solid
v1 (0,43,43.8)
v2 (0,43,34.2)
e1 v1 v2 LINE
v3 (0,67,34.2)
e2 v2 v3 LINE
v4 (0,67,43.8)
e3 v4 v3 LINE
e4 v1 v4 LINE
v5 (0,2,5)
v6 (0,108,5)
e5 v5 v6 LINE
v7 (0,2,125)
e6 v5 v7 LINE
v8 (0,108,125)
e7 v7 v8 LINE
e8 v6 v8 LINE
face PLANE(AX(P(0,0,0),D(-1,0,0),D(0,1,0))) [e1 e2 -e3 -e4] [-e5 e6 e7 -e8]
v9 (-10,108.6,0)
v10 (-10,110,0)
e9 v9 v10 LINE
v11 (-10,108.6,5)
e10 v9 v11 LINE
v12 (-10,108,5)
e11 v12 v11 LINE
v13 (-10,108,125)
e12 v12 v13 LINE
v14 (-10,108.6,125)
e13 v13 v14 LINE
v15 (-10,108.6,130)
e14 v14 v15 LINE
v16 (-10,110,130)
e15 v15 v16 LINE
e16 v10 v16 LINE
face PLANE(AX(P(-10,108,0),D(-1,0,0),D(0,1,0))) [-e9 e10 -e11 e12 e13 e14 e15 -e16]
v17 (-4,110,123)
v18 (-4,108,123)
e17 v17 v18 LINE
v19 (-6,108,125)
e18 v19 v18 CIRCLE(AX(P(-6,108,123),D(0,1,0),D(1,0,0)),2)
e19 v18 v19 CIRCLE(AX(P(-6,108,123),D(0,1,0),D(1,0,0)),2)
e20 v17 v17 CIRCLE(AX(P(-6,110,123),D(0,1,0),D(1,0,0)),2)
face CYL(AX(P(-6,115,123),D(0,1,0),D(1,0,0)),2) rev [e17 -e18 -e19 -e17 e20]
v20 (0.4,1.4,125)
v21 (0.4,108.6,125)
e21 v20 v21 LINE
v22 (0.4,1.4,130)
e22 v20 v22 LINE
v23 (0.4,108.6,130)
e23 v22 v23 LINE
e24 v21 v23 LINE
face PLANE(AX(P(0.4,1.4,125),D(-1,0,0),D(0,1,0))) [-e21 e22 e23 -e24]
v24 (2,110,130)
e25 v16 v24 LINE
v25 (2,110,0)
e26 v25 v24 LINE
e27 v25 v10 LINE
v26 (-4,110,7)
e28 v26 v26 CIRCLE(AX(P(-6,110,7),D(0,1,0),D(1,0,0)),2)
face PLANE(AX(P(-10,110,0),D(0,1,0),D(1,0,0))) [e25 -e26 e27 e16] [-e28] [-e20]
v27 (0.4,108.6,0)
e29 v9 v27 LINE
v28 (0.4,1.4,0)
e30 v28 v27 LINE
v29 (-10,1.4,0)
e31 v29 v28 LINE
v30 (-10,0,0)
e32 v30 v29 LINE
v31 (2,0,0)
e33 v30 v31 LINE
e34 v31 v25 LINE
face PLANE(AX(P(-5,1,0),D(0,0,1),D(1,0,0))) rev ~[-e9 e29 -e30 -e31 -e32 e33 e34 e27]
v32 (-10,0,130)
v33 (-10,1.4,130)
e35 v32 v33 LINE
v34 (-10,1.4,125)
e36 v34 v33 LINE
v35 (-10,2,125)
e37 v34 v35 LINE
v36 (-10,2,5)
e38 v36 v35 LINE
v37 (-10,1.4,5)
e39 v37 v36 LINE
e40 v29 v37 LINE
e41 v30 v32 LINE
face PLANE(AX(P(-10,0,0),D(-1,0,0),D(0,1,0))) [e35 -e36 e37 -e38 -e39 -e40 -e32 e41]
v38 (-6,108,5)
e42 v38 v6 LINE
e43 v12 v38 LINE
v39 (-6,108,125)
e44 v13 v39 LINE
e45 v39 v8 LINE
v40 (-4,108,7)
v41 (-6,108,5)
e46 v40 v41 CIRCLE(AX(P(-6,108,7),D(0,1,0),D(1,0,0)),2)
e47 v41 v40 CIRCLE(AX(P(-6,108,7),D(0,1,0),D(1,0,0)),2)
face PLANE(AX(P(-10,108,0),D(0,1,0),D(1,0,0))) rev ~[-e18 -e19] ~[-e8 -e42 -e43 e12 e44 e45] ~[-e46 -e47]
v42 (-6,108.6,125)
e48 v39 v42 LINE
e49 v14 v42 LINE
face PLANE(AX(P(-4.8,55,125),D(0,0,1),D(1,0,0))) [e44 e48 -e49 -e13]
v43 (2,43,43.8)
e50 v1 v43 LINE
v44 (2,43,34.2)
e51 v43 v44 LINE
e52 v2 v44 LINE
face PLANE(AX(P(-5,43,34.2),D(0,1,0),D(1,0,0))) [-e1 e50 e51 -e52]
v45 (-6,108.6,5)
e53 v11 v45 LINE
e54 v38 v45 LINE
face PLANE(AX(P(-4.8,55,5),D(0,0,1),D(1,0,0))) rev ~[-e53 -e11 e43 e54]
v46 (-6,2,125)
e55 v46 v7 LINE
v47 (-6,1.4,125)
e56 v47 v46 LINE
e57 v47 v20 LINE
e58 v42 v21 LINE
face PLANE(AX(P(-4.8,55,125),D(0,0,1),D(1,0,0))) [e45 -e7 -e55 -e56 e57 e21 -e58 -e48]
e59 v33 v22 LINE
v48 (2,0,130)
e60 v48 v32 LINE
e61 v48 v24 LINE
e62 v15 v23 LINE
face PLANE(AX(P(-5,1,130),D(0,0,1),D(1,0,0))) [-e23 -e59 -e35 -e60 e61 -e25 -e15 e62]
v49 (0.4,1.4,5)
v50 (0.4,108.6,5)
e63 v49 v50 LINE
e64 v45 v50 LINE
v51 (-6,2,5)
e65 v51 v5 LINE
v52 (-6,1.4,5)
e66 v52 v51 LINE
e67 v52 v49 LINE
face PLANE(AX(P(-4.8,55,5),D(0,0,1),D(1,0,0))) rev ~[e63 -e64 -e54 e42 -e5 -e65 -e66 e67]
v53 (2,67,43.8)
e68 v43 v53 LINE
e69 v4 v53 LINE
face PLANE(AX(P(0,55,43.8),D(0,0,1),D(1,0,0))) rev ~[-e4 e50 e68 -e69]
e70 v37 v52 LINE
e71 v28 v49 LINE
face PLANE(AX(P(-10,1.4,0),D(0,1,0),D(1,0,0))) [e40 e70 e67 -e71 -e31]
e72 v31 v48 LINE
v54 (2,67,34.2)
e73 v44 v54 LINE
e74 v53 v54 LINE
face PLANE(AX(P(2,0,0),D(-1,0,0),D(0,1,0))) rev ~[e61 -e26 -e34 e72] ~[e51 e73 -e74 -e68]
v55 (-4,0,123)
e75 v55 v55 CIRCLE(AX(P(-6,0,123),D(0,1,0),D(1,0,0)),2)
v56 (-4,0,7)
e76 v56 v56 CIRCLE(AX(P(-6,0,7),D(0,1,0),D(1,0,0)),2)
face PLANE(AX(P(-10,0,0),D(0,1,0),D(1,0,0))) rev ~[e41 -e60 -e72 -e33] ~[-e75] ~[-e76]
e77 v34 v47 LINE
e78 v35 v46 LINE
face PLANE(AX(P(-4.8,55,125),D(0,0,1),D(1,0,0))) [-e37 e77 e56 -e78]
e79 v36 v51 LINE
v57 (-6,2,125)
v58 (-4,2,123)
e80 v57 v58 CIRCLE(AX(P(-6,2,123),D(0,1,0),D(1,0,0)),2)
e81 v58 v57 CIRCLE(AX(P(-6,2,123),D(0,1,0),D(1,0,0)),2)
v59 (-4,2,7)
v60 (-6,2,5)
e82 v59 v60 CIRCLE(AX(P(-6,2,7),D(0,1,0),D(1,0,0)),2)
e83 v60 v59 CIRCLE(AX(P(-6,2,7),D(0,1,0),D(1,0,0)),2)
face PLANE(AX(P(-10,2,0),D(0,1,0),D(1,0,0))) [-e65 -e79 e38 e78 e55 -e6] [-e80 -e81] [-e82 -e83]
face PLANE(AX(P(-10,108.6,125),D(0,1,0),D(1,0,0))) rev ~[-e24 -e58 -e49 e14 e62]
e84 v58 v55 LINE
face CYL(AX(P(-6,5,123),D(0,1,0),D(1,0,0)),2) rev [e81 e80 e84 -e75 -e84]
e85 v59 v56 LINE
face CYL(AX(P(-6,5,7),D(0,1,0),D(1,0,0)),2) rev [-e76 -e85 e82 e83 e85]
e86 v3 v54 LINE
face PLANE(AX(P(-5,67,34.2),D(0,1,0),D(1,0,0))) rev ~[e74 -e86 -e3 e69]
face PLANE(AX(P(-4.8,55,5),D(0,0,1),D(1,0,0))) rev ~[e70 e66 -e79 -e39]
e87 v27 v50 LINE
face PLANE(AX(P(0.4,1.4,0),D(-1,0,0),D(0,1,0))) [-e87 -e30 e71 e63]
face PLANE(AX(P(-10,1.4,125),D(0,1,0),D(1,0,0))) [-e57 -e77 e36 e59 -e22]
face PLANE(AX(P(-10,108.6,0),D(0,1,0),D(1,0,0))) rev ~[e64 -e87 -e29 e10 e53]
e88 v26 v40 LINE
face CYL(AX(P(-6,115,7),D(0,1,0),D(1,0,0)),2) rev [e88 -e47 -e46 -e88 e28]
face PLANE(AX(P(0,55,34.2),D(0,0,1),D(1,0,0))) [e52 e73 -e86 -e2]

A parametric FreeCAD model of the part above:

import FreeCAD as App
import Part
import Sketcher

V = App.Vector
Q = App.Units.Quantity

doc = App.newDocument("Part")
body = doc.addObject("PartDesign::Body", "Body")

# Sketch on XZ plane
sketch1 = body.newObject("Sketcher::SketchObject", "Sketch")
sketch1.AttachmentSupport = (doc.getObject("XZ_Plane"), [""])
sketch1.MapMode = "FlatFace"
sketch1.AttachmentOffset = App.Placement(V(0, 0, -5), App.Rotation())
sketch1.addGeometry(Part.Circle(V(-6, 123, 0), V(0, 0, 1), 2), False)
sketch1.addConstraint([
    Sketcher.Constraint("Diameter", 0, Q("4 mm")),
    Sketcher.Constraint("DistanceX", 0, 3, -1, 1, Q("6 mm")),
    Sketcher.Constraint("DistanceY", -1, 1, 0, 3, Q("123 mm")),
])
pad1 = body.newObject("PartDesign::Pad", "Pad")
pad1.Profile = sketch1
pad1.Length = 10
body2 = doc.addObject("PartDesign::Body", "Body001")

# Sketch on XZ plane
sketch2 = body2.newObject("Sketcher::SketchObject", "Sketch001")
sketch2.AttachmentSupport = (doc.getObject("XZ_Plane001"), [""])
sketch2.MapMode = "FlatFace"
sketch2.AttachmentOffset = App.Placement(V(0, 0, -115), App.Rotation())
sketch2.addGeometry(Part.Circle(V(-6, 123, 0), V(0, 0, 1), 2), False)
sketch2.addConstraint([
    Sketcher.Constraint("Diameter", 0, Q("4 mm")),
    Sketcher.Constraint("DistanceX", 0, 3, -1, 1, Q("6 mm")),
    Sketcher.Constraint("DistanceY", -1, 1, 0, 3, Q("123 mm")),
])
pad2 = body2.newObject("PartDesign::Pad", "Pad001")
pad2.Profile = sketch2
pad2.Length = 10
body3 = doc.addObject("PartDesign::Body", "Body002")

# Sketch on XZ plane
sketch3 = body3.newObject("Sketcher::SketchObject", "Sketch002")
sketch3.AttachmentSupport = (doc.getObject("XZ_Plane002"), [""])
sketch3.MapMode = "FlatFace"
sketch3.AttachmentOffset = App.Placement(V(0, 0, -115), App.Rotation())
sketch3.addGeometry(Part.Circle(V(-6, 7, 0), V(0, 0, 1), 2), False)
sketch3.addConstraint([
    Sketcher.Constraint("Diameter", 0, Q("4 mm")),
    Sketcher.Constraint("DistanceX", 0, 3, -1, 1, Q("6 mm")),
    Sketcher.Constraint("DistanceY", -1, 1, 0, 3, Q("7 mm")),
])
pad3 = body3.newObject("PartDesign::Pad", "Pad002")
pad3.Profile = sketch3
pad3.Length = 10
body4 = doc.addObject("PartDesign::Body", "Body003")
body4.AllowCompound = True

# Sketch on XZ plane
sketch4 = body4.newObject("Sketcher::SketchObject", "Sketch003")
sketch4.AttachmentSupport = (doc.getObject("XZ_Plane003"), [""])
sketch4.MapMode = "FlatFace"
sketch4.AttachmentOffset = App.Placement(V(0, 0, -5), App.Rotation())
sketch4.addGeometry(Part.Circle(V(-6, 7, 0), V(0, 0, 1), 2), False)
sketch4.addConstraint([
    Sketcher.Constraint("Diameter", 0, Q("4 mm")),
    Sketcher.Constraint("DistanceX", 0, 3, -1, 1, Q("6 mm")),
    Sketcher.Constraint("DistanceY", -1, 1, 0, 3, Q("7 mm")),
])
pad4 = body4.newObject("PartDesign::Pad", "Pad003")
pad4.Profile = sketch4
pad4.Length = 10
doc.recompute()

boolean = body4.newObject("PartDesign::Boolean", "Boolean")
boolean.Type = "Fuse"
boolean.addObjects([body])
doc.recompute()

boolean2 = body4.newObject("PartDesign::Boolean", "Boolean001")
boolean2.Type = "Fuse"
boolean2.addObjects([body2])
doc.recompute()

boolean3 = body4.newObject("PartDesign::Boolean", "Boolean002")
boolean3.Type = "Fuse"
boolean3.addObjects([body3])
body5 = doc.addObject("PartDesign::Body", "Body004")

# Sketch on XY plane
sketch5 = body5.newObject("Sketcher::SketchObject", "Sketch004")
sketch5.AttachmentSupport = (doc.getObject("XY_Plane004"), [""])
sketch5.MapMode = "FlatFace"
sketch5.AttachmentOffset = App.Placement(V(0, 0, 34.2), App.Rotation())
sketch5.addGeometry([
    Part.LineSegment(V(-5, 67, 0), V(-5, 43, 0)),
    Part.LineSegment(V(-5, 43, 0), V(5, 43, 0)),
    Part.LineSegment(V(5, 43, 0), V(5, 67, 0)),
    Part.LineSegment(V(5, 67, 0), V(-5, 67, 0)),
], False)
sketch5.addConstraint([
    Sketcher.Constraint("Coincident", 0, 2, 1, 1),
    Sketcher.Constraint("Coincident", 1, 2, 2, 1),
    Sketcher.Constraint("Coincident", 2, 2, 3, 1),
    Sketcher.Constraint("Coincident", 3, 2, 0, 1),
    Sketcher.Constraint("Vertical", 0),
    Sketcher.Constraint("Horizontal", 1),
    Sketcher.Constraint("Vertical", 2),
    Sketcher.Constraint("Horizontal", 3),
    Sketcher.Constraint("DistanceX", 1, 1, 1, 2, Q("10 mm")),
    Sketcher.Constraint("DistanceY", 0, 2, 0, 1, Q("24 mm")),
    Sketcher.Constraint("DistanceX", 0, 2, -1, 1, Q("5 mm")),
    Sketcher.Constraint("DistanceY", -1, 1, 0, 2, Q("43 mm")),
])
pad5 = body5.newObject("PartDesign::Pad", "Pad004")
pad5.Profile = sketch5
pad5.Length = 9.6
body6 = doc.addObject("PartDesign::Body", "Body005")

# Sketch on XY plane
sketch6 = body6.newObject("Sketcher::SketchObject", "Sketch005")
sketch6.AttachmentSupport = (doc.getObject("XY_Plane005"), [""])
sketch6.MapMode = "FlatFace"
sketch6.addGeometry([
    Part.LineSegment(V(-10, 109, 0), V(-10, 1, 0)),
    Part.LineSegment(V(-10, 1, 0), V(0, 1, 0)),
    Part.LineSegment(V(0, 1, 0), V(0, 109, 0)),
    Part.LineSegment(V(0, 109, 0), V(-10, 109, 0)),
], False)
sketch6.addConstraint([
    Sketcher.Constraint("Coincident", 0, 2, 1, 1),
    Sketcher.Constraint("Coincident", 1, 2, 2, 1),
    Sketcher.Constraint("Coincident", 2, 2, 3, 1),
    Sketcher.Constraint("Coincident", 3, 2, 0, 1),
    Sketcher.Constraint("Vertical", 0),
    Sketcher.Constraint("Horizontal", 1),
    Sketcher.Constraint("Vertical", 2),
    Sketcher.Constraint("Horizontal", 3),
    Sketcher.Constraint("DistanceX", 1, 1, 1, 2, Q("10.4 mm")),
    Sketcher.Constraint("DistanceY", 0, 2, 0, 1, Q("107.2 mm")),
    Sketcher.Constraint("DistanceX", 0, 2, -1, 1, Q("10 mm")),
    Sketcher.Constraint("DistanceY", -1, 1, 0, 2, Q("1.4 mm")),
])
pad6 = body6.newObject("PartDesign::Pad", "Pad005")
pad6.Profile = sketch6
pad6.Length = 5
body7 = doc.addObject("PartDesign::Body", "Body006")
body7.AllowCompound = True

# Sketch on XY plane
sketch7 = body7.newObject("Sketcher::SketchObject", "Sketch006")
sketch7.AttachmentSupport = (doc.getObject("XY_Plane006"), [""])
sketch7.MapMode = "FlatFace"
sketch7.AttachmentOffset = App.Placement(V(0, 0, 125), App.Rotation())
sketch7.addGeometry([
    Part.LineSegment(V(-10, 109, 0), V(-10, 1, 0)),
    Part.LineSegment(V(-10, 1, 0), V(0, 1, 0)),
    Part.LineSegment(V(0, 1, 0), V(0, 109, 0)),
    Part.LineSegment(V(0, 109, 0), V(-10, 109, 0)),
], False)
sketch7.addConstraint([
    Sketcher.Constraint("Coincident", 0, 2, 1, 1),
    Sketcher.Constraint("Coincident", 1, 2, 2, 1),
    Sketcher.Constraint("Coincident", 2, 2, 3, 1),
    Sketcher.Constraint("Coincident", 3, 2, 0, 1),
    Sketcher.Constraint("Vertical", 0),
    Sketcher.Constraint("Horizontal", 1),
    Sketcher.Constraint("Vertical", 2),
    Sketcher.Constraint("Horizontal", 3),
    Sketcher.Constraint("DistanceX", 1, 1, 1, 2, Q("10.4 mm")),
    Sketcher.Constraint("DistanceY", 0, 2, 0, 1, Q("107.2 mm")),
    Sketcher.Constraint("DistanceX", 0, 2, -1, 1, Q("10 mm")),
    Sketcher.Constraint("DistanceY", -1, 1, 0, 2, Q("1.4 mm")),
])
pad7 = body7.newObject("PartDesign::Pad", "Pad006")
pad7.Profile = sketch7
pad7.Length = 5
doc.recompute()

boolean4 = body7.newObject("PartDesign::Boolean", "Boolean003")
boolean4.Type = "Fuse"
boolean4.addObjects([body6])
body8 = doc.addObject("PartDesign::Body", "Body007")

# Sketch on XY plane
sketch8 = body8.newObject("Sketcher::SketchObject", "Sketch007")
sketch8.AttachmentSupport = (doc.getObject("XY_Plane007"), [""])
sketch8.MapMode = "FlatFace"
sketch8.addGeometry([
    Part.LineSegment(V(-10, 110, 0), V(-10, 108, 0)),
    Part.LineSegment(V(-10, 108, 0), V(0, 108, 0)),
    Part.LineSegment(V(0, 108, 0), V(0, 110, 0)),
    Part.LineSegment(V(0, 110, 0), V(-10, 110, 0)),
], False)
sketch8.addConstraint([
    Sketcher.Constraint("Coincident", 0, 2, 1, 1),
    Sketcher.Constraint("Coincident", 1, 2, 2, 1),
    Sketcher.Constraint("Coincident", 2, 2, 3, 1),
    Sketcher.Constraint("Coincident", 3, 2, 0, 1),
    Sketcher.Constraint("Vertical", 0),
    Sketcher.Constraint("Horizontal", 1),
    Sketcher.Constraint("Vertical", 2),
    Sketcher.Constraint("Horizontal", 3),
    Sketcher.Constraint("PointOnObject", 1, 2, -2),
    Sketcher.Constraint("DistanceX", 1, 1, 1, 2, Q("10 mm")),
    Sketcher.Constraint("DistanceY", 0, 2, 0, 1, Q("2 mm")),
    Sketcher.Constraint("DistanceY", -1, 1, 0, 2, Q("108 mm")),
])
pad8 = body8.newObject("PartDesign::Pad", "Pad007")
pad8.Profile = sketch8
pad8.Length = 130
body9 = doc.addObject("PartDesign::Body", "Body008")

# Sketch on XY plane
sketch9 = body9.newObject("Sketcher::SketchObject", "Sketch008")
sketch9.AttachmentSupport = (doc.getObject("XY_Plane008"), [""])
sketch9.MapMode = "FlatFace"
sketch9.addGeometry([
    Part.LineSegment(V(-10, 2, 0), V(-10, 0, 0)),
    Part.LineSegment(V(-10, 0, 0), V(0, 0, 0)),
    Part.LineSegment(V(0, 0, 0), V(0, 2, 0)),
    Part.LineSegment(V(0, 2, 0), V(-10, 2, 0)),
], False)
sketch9.addConstraint([
    Sketcher.Constraint("Coincident", 0, 2, 1, 1),
    Sketcher.Constraint("Coincident", 1, 2, 2, 1),
    Sketcher.Constraint("Coincident", 2, 2, 3, 1),
    Sketcher.Constraint("Coincident", 3, 2, 0, 1),
    Sketcher.Constraint("Vertical", 0),
    Sketcher.Constraint("Horizontal", 1),
    Sketcher.Constraint("Vertical", 2),
    Sketcher.Constraint("Horizontal", 3),
    Sketcher.Constraint("Coincident", 1, 2, -1, 1),
    Sketcher.Constraint("DistanceX", 1, 1, 1, 2, Q("10 mm")),
    Sketcher.Constraint("DistanceY", 0, 2, 0, 1, Q("2 mm")),
])
pad9 = body9.newObject("PartDesign::Pad", "Pad008")
pad9.Profile = sketch9
pad9.Length = 130
body10 = doc.addObject("PartDesign::Body", "Body009")

# Sketch on XY plane
sketch10 = body10.newObject("Sketcher::SketchObject", "Sketch009")
sketch10.AttachmentSupport = (doc.getObject("XY_Plane009"), [""])
sketch10.MapMode = "FlatFace"
sketch10.addGeometry([
    Part.LineSegment(V(0, 110, 0), V(0, 0, 0)),
    Part.LineSegment(V(0, 0, 0), V(2, 0, 0)),
    Part.LineSegment(V(2, 0, 0), V(2, 110, 0)),
    Part.LineSegment(V(2, 110, 0), V(0, 110, 0)),
], False)
sketch10.addConstraint([
    Sketcher.Constraint("Coincident", 0, 2, 1, 1),
    Sketcher.Constraint("Coincident", 1, 2, 2, 1),
    Sketcher.Constraint("Coincident", 2, 2, 3, 1),
    Sketcher.Constraint("Coincident", 3, 2, 0, 1),
    Sketcher.Constraint("Vertical", 0),
    Sketcher.Constraint("Horizontal", 1),
    Sketcher.Constraint("Vertical", 2),
    Sketcher.Constraint("Horizontal", 3),
    Sketcher.Constraint("Coincident", 0, 2, -1, 1),
    Sketcher.Constraint("DistanceX", 1, 1, 1, 2, Q("2 mm")),
    Sketcher.Constraint("DistanceY", 0, 2, 0, 1, Q("110 mm")),
])
pad10 = body10.newObject("PartDesign::Pad", "Pad009")
pad10.Profile = sketch10
pad10.Length = 130
doc.recompute()

boolean5 = body10.newObject("PartDesign::Boolean", "Boolean004")
boolean5.Type = "Fuse"
boolean5.addObjects([body8])
doc.recompute()

boolean6 = body10.newObject("PartDesign::Boolean", "Boolean005")
boolean6.Type = "Fuse"
boolean6.addObjects([body9])
doc.recompute()

boolean7 = body10.newObject("PartDesign::Boolean", "Boolean006")
boolean7.Type = "Cut"
boolean7.addObjects([body7])
doc.recompute()

boolean8 = body10.newObject("PartDesign::Boolean", "Boolean007")
boolean8.Type = "Cut"
boolean8.addObjects([body5])
doc.recompute()

boolean9 = body10.newObject("PartDesign::Boolean", "Boolean008")
boolean9.Type = "Cut"
boolean9.addObjects([body4])

doc.recompute()
